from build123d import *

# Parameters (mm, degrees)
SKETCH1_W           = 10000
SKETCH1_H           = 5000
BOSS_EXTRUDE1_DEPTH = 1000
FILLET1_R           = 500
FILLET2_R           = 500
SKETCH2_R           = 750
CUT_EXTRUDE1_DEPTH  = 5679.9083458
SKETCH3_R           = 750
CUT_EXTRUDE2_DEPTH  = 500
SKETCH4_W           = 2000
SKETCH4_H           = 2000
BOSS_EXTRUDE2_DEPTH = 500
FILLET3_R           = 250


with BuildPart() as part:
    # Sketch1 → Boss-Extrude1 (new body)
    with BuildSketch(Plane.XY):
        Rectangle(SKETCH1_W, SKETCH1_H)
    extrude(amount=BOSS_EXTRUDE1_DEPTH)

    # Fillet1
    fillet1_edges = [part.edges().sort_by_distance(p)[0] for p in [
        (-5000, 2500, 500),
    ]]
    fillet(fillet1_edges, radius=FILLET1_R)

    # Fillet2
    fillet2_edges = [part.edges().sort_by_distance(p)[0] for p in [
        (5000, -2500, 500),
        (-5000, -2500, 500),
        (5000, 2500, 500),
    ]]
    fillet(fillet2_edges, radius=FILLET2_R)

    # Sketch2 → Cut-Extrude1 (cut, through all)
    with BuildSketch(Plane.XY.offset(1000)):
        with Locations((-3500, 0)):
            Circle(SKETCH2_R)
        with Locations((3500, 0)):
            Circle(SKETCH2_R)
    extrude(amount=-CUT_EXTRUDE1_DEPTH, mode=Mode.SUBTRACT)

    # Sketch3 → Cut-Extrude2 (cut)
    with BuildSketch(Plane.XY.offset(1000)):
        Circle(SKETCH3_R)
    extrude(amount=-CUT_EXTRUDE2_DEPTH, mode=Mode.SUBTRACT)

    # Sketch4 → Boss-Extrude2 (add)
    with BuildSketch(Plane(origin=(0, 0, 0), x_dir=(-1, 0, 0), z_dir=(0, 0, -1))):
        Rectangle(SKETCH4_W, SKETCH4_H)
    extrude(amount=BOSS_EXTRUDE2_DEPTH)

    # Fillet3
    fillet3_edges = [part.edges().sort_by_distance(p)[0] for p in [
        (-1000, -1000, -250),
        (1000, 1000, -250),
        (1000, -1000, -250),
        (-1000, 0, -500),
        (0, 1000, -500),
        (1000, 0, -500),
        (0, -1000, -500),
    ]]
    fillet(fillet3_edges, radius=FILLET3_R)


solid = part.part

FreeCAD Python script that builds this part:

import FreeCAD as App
import Part
import Sketcher
from FreeCAD import Vector


def edges_at(feature, points):
    """Names of the edges that pass closest to the given points."""
    edges = feature.Shape.Edges
    near = lambda p: min(range(len(edges)), key=lambda i: edges[i].distToShape(Part.Vertex(*p))[0])
    return sorted({f"Edge{near(p) + 1}" for p in points})


def add_polygon(sketch, points):
    """Adds a closed chain of lines whose ends are joined by coincident constraints."""
    first, n = sketch.GeometryCount, len(points)
    for a, b in zip(points, points[1:] + points[:1]):
        sketch.addGeometry(Part.LineSegment(App.Vector(*a, 0), App.Vector(*b, 0)), False)
    for i in range(n):
        sketch.addConstraint(Sketcher.Constraint("Coincident", first + i, 2, first + (i + 1) % n, 1))

doc = App.newDocument("Part")
params = doc.addObject("Spreadsheet::Sheet", "Params")
for row, (alias, value) in enumerate([
    ("sketch1_width", "10000 mm"),
    ("sketch1_height", "5000 mm"),
    ("pad1_length", "1000 mm"),
    ("fillet_radius", "500 mm"),
    ("fillet2_radius", "500 mm"),
    ("sketch2_diameter", "1500 mm"),
    ("sketch3_diameter", "1500 mm"),
    ("pocket2_length", "500 mm"),
    ("sketch4_width", "2000 mm"),
    ("pad2_length", "500 mm"),
    ("fillet3_radius", "250 mm"),
], start=1):
    params.set(f"A{row}", alias)
    params.set(f"B{row}", "=" + value)
    params.setAlias(f"B{row}", alias)

body = doc.addObject("PartDesign::Body", "Body")

sketch1 = body.newObject("Sketcher::SketchObject", "Sketch")
sketch1.AttachmentSupport = (doc.getObject("XY_Plane"), [""])
sketch1.MapMode = "FlatFace"
add_polygon(sketch1, [(-5000, 2500), (-5000, -2500), (5000, -2500), (5000, 2500)])
sketch1.addConstraint(Sketcher.Constraint("Vertical", 0))
sketch1.addConstraint(Sketcher.Constraint("Horizontal", 1))
sketch1.addConstraint(Sketcher.Constraint("Vertical", 2))
sketch1.addConstraint(Sketcher.Constraint("Horizontal", 3))
sketch1.addConstraint(Sketcher.Constraint("Symmetric", 0, 2, 2, 2, -1, 1))
sketch1.addConstraint(Sketcher.Constraint("DistanceX", 1, 1, 1, 2, 10000.0))
sketch1.addConstraint(Sketcher.Constraint("DistanceY", 0, 2, 0, 1, 5000.0))
sketch1.setExpression("Constraints[9]", "Params.sketch1_width")
sketch1.setExpression("Constraints[10]", "Params.sketch1_height")
pad1 = body.newObject("PartDesign::Pad", "Pad")
pad1.Profile = sketch1
pad1.setExpression("Length", "Params.pad1_length")
doc.recompute()

fillet = body.newObject("PartDesign::Fillet", "Fillet")
fillet.Base = (pad1, edges_at(pad1, [(-5000, 2500, 500)]))
fillet.setExpression("Radius", "Params.fillet_radius")
doc.recompute()

fillet2 = body.newObject("PartDesign::Fillet", "Fillet001")
fillet2.Base = (fillet, edges_at(fillet, [(5000, -2500, 500), (-5000, -2500, 500), (5000, 2500, 500)]))
fillet2.setExpression("Radius", "Params.fillet2_radius")

sketch2 = body.newObject("Sketcher::SketchObject", "Sketch001")
sketch2.AttachmentSupport = (doc.getObject("XY_Plane"), [""])
sketch2.MapMode = "FlatFace"
sketch2.AttachmentOffset = App.Placement(Vector(0, 0, 1000), App.Rotation())
sketch2.addGeometry(Part.Circle(Vector(-3500, 0, 0), Vector(0, 0, 1), 750), False)
sketch2.addGeometry(Part.Circle(Vector(3500, 0, 0), Vector(0, 0, 1), 750), False)
sketch2.addConstraint(Sketcher.Constraint("Equal", 0, 1))
sketch2.addConstraint(Sketcher.Constraint("Symmetric", 0, 3, 1, 3, -1, 1))
sketch2.addConstraint(Sketcher.Constraint("PointOnObject", 0, 3, -1))
sketch2.addConstraint(Sketcher.Constraint("Diameter", 0, 1500.0))
sketch2.addConstraint(Sketcher.Constraint("DistanceX", 0, 3, -1, 1, 3500.0))
sketch2.setExpression("Constraints[3]", "Params.sketch2_diameter")
pocket1 = body.newObject("PartDesign::Pocket", "Pocket")
pocket1.Profile = sketch2
pocket1.Type = "ThroughAll"

sketch3 = body.newObject("Sketcher::SketchObject", "Sketch002")
sketch3.AttachmentSupport = (doc.getObject("XY_Plane"), [""])
sketch3.MapMode = "FlatFace"
sketch3.AttachmentOffset = App.Placement(Vector(0, 0, 1000), App.Rotation())
sketch3.addGeometry(Part.Circle(Vector(0, 0, 0), Vector(0, 0, 1), 750), False)
sketch3.addConstraint(Sketcher.Constraint("Coincident", 0, 3, -1, 1))
sketch3.addConstraint(Sketcher.Constraint("Diameter", 0, 1500.0))
sketch3.setExpression("Constraints[1]", "Params.sketch3_diameter")
pocket2 = body.newObject("PartDesign::Pocket", "Pocket001")
pocket2.Profile = sketch3
pocket2.setExpression("Length", "Params.pocket2_length")

sketch4 = body.newObject("Sketcher::SketchObject", "Sketch003")
sketch4.AttachmentSupport = (doc.getObject("XY_Plane"), [""])
sketch4.MapMode = "FlatFace"
add_polygon(sketch4, [(1000, 1000), (1000, -1000), (-1000, -1000), (-1000, 1000)])
sketch4.addConstraint(Sketcher.Constraint("Vertical", 0))
sketch4.addConstraint(Sketcher.Constraint("Horizontal", 1))
sketch4.addConstraint(Sketcher.Constraint("Vertical", 2))
sketch4.addConstraint(Sketcher.Constraint("Horizontal", 3))
sketch4.addConstraint(Sketcher.Constraint("Symmetric", 0, 2, 2, 2, -1, 1))
sketch4.addConstraint(Sketcher.Constraint("Equal", 3, 0))
sketch4.addConstraint(Sketcher.Constraint("DistanceX", 1, 2, 1, 1, 2000.0))
sketch4.setExpression("Constraints[10]", "Params.sketch4_width")
pad2 = body.newObject("PartDesign::Pad", "Pad001")
pad2.Profile = sketch4
pad2.setExpression("Length", "Params.pad2_length")
pad2.Reversed = True
doc.recompute()

fillet3 = body.newObject("PartDesign::Fillet", "Fillet002")
fillet3.Base = (pad2, edges_at(pad2, [
    (-1000, -1000, -250),
    (1000, 1000, -250),
    (1000, -1000, -250),
    (-1000, 0, -500),
    (0, 1000, -500),
    (1000, 0, -500),
    (0, -1000, -500),
]))
fillet3.setExpression("Radius", "Params.fillet3_radius")

doc.recompute()
